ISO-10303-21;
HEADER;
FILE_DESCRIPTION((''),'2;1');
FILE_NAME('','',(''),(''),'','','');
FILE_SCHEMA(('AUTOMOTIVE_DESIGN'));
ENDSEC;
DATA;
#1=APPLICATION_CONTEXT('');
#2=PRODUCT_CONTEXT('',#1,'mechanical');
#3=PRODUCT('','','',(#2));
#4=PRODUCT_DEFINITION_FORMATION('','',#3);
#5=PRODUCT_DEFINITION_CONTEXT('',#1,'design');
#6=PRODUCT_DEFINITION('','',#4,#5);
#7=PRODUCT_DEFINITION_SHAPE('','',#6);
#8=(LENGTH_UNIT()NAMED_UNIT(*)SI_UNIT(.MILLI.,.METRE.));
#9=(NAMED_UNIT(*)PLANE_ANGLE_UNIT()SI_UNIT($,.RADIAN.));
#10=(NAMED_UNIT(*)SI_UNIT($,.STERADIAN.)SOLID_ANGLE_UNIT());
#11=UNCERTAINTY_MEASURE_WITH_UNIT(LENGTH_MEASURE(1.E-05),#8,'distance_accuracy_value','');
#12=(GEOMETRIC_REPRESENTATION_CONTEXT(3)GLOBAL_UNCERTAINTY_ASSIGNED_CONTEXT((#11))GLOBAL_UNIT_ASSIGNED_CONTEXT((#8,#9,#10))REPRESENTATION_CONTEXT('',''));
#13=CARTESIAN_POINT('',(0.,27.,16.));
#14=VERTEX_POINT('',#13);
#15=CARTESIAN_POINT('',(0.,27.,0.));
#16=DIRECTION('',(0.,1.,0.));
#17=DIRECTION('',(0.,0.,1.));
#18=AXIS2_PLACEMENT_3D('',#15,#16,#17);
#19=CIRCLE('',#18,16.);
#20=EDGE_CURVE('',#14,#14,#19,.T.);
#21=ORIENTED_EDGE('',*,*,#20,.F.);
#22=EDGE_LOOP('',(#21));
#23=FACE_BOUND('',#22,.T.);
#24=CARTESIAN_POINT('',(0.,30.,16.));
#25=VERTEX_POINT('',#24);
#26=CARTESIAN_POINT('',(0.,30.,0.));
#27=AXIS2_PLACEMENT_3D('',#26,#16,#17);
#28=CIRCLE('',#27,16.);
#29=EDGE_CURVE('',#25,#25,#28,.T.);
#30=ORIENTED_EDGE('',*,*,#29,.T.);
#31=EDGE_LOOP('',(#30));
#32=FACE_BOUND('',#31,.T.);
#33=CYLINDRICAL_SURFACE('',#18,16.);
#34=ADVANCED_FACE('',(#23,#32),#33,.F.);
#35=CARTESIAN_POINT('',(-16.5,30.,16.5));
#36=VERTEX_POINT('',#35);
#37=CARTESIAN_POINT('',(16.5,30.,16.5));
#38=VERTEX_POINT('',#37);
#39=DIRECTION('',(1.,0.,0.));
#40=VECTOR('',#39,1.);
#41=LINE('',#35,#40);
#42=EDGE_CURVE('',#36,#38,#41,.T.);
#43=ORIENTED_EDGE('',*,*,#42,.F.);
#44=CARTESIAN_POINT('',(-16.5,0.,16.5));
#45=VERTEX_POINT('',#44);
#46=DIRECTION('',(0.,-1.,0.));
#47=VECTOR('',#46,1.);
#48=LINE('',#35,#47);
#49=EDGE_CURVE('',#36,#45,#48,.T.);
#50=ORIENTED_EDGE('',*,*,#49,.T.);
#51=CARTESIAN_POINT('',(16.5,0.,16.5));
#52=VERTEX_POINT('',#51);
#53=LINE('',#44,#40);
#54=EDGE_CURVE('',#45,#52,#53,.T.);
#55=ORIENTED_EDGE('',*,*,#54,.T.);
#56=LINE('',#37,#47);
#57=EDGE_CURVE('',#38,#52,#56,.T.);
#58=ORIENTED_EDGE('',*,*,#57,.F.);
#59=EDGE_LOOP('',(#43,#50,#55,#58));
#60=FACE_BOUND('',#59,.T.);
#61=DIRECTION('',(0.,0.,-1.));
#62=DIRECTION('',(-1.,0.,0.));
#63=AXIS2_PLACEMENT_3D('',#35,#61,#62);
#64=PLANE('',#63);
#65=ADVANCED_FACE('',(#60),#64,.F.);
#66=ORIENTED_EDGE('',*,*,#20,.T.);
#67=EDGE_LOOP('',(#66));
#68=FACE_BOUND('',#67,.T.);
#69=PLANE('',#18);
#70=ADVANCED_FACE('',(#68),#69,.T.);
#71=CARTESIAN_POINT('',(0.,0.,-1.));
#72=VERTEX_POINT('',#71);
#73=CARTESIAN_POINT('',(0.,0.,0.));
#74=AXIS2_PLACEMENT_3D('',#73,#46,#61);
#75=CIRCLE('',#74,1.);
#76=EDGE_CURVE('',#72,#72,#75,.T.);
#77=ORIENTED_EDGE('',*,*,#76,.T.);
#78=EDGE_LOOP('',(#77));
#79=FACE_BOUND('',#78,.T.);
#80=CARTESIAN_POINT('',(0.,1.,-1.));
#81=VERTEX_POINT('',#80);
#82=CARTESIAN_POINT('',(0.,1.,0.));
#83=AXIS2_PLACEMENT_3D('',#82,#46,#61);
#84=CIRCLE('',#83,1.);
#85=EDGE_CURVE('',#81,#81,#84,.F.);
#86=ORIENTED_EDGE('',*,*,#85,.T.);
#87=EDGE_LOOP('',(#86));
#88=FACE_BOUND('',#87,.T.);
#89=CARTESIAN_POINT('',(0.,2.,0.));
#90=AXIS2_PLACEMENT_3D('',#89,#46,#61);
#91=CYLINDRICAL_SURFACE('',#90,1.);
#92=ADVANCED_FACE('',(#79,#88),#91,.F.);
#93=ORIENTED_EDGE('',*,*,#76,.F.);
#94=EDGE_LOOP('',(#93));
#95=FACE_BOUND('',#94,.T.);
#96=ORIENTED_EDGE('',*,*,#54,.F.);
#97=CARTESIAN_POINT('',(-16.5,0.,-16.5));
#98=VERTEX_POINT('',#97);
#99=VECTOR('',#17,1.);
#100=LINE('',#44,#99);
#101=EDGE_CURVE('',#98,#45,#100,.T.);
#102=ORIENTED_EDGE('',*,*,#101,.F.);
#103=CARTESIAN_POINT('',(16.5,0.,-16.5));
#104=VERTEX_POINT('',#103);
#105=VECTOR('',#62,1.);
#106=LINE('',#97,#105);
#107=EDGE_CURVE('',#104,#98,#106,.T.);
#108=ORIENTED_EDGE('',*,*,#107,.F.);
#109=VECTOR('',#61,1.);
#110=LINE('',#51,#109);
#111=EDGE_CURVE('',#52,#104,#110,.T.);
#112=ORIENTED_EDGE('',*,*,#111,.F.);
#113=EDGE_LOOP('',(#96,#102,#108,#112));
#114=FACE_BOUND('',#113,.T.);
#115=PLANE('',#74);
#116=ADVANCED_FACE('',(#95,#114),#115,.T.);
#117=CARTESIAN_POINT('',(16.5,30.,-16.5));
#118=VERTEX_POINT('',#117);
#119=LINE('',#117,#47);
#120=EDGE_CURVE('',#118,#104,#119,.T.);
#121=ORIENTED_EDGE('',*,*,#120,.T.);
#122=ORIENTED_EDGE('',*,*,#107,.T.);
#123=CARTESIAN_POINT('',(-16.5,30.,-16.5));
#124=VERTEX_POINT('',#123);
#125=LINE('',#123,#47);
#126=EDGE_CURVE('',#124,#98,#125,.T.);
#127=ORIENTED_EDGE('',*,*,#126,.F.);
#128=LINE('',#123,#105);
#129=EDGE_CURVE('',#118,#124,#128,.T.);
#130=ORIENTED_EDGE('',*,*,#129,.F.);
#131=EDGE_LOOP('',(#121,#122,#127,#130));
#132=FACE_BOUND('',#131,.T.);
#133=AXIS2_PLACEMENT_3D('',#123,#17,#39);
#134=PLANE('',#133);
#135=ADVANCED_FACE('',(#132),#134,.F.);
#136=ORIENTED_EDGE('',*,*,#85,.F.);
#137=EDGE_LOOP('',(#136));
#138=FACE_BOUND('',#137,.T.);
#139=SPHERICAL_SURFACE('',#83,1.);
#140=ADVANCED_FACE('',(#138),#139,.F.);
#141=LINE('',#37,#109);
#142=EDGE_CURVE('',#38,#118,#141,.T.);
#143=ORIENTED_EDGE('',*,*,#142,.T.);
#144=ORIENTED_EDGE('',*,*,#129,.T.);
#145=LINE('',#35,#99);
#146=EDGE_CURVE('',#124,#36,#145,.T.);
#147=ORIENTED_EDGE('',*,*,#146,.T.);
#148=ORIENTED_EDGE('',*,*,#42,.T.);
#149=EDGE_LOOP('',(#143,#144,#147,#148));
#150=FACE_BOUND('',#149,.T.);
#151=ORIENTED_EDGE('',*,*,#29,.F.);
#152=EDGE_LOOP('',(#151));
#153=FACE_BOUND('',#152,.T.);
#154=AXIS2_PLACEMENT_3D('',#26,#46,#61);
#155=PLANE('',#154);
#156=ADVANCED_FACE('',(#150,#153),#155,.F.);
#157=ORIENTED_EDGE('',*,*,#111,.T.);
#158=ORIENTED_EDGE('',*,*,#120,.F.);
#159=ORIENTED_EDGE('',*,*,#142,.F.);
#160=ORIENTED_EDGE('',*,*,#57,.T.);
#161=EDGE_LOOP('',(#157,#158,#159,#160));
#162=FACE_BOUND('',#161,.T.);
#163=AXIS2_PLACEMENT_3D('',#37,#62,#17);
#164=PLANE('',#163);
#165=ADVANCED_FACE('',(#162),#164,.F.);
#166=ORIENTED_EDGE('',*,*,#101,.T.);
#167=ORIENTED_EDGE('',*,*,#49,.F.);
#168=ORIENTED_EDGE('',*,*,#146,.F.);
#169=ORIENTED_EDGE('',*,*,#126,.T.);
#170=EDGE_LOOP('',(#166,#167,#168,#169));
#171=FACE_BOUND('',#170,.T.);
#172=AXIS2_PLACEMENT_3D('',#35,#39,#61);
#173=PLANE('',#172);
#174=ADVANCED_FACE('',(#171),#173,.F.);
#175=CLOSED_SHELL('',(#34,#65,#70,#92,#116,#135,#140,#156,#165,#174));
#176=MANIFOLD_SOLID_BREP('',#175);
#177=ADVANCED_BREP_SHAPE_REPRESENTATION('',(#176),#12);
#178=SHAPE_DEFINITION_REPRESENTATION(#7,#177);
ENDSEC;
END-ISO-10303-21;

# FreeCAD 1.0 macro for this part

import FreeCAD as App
import Part
import Sketcher
Q = App.Units.Quantity


def edges_at(feature, points):
    """Names of the edges that pass closest to the given points."""
    edges = feature.Shape.Edges
    near = lambda p: min(range(len(edges)), key=lambda i: edges[i].distToShape(Part.Vertex(*p))[0])
    return sorted({f"Edge{near(p) + 1}" for p in points})

doc = App.newDocument("Part")
body = doc.addObject("PartDesign::Body", "Body")

# Sketch on XZ plane
sketch1 = body.newObject("Sketcher::SketchObject", "Sketch")
sketch1.AttachmentSupport = (doc.getObject("XZ_Plane"), [""])
sketch1.MapMode = "FlatFace"
sketch1.addGeometry([
    Part.LineSegment(App.Vector(-16, -16, 0), App.Vector(-16, 16, 0)),
    Part.LineSegment(App.Vector(-16, 16, 0), App.Vector(16, 16, 0)),
    Part.LineSegment(App.Vector(16, 16, 0), App.Vector(16, -16, 0)),
    Part.LineSegment(App.Vector(16, -16, 0), App.Vector(-16, -16, 0)),
], False)
sketch1.addConstraint([
    Sketcher.Constraint("Coincident", 0, 2, 1, 1),
    Sketcher.Constraint("Coincident", 1, 2, 2, 1),
    Sketcher.Constraint("Coincident", 2, 2, 3, 1),
    Sketcher.Constraint("Coincident", 3, 2, 0, 1),
    Sketcher.Constraint("Vertical", 0),
    Sketcher.Constraint("Horizontal", 1),
    Sketcher.Constraint("Vertical", 2),
    Sketcher.Constraint("Horizontal", 3),
    Sketcher.Constraint("Symmetric", 0, 2, 2, 2, -1, 1),
    Sketcher.Constraint("Equal", 3, 0),
    Sketcher.Constraint("DistanceX", 1, 1, 1, 2, Q("33 mm")),
])
pad1 = body.newObject("PartDesign::Pad", "Pad")
pad1.Profile = sketch1
pad1.Length = 30
pad1.Reversed = True

# Sketch on XZ plane
sketch2 = body.newObject("Sketcher::SketchObject", "Sketch001")
sketch2.AttachmentSupport = (doc.getObject("XZ_Plane"), [""])
sketch2.MapMode = "FlatFace"
sketch2.AttachmentOffset = App.Placement(App.Vector(0, 0, -30), App.Rotation())
sketch2.addGeometry(Part.Circle(App.Vector(0, 0, 0), App.Vector(0, 0, 1), 16), False)
sketch2.addConstraint([
    Sketcher.Constraint("Coincident", 0, 3, -1, 1),
    Sketcher.Constraint("Diameter", 0, Q("32 mm")),
])
pocket1 = body.newObject("PartDesign::Pocket", "Pocket")
pocket1.Profile = sketch2
pocket1.Length = 3
pocket1.Reversed = True

# Sketch on XZ plane
sketch3 = body.newObject("Sketcher::SketchObject", "Sketch002")
sketch3.AttachmentSupport = (doc.getObject("XZ_Plane"), [""])
sketch3.MapMode = "FlatFace"
sketch3.addGeometry(Part.Circle(App.Vector(0, 0, 0), App.Vector(0, 0, 1), 1), False)
sketch3.addConstraint([
    Sketcher.Constraint("Coincident", 0, 3, -1, 1),
    Sketcher.Constraint("Diameter", 0, Q("2 mm")),
])
pocket2 = body.newObject("PartDesign::Pocket", "Pocket001")
pocket2.Profile = sketch3
pocket2.Length = 2
doc.recompute()

fillet = body.newObject("PartDesign::Fillet", "Fillet")
fillet.Base = (pocket2, edges_at(pocket2, [(-1, 2, 0)]))
fillet.Radius = 1

doc.recompute()
